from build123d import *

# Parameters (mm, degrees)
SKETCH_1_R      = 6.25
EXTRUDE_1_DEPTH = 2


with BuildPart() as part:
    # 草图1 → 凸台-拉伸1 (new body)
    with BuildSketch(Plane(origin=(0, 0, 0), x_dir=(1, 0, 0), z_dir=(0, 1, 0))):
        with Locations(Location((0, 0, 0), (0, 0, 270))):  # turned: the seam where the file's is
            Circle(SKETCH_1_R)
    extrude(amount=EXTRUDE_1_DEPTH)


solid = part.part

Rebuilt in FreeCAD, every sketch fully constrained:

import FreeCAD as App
import Part
import Sketcher

V = App.Vector

doc = App.newDocument("Part")
body = doc.addObject("PartDesign::Body", "Body")

# Sketch on XZ plane
sketch1 = body.newObject("Sketcher::SketchObject", "Sketch")
sketch1.AttachmentSupport = (doc.getObject("XZ_Plane"), [""])
sketch1.MapMode = "FlatFace"
sketch1.addGeometry(Part.Circle(V(0, 0, 0), V(0, 0, 1), 6), False)
sketch1.addConstraint([
    Sketcher.Constraint("Coincident", 0, 3, -1, 1),
    Sketcher.Constraint("Diameter", 0, 12.5),
])
pad1 = body.newObject("PartDesign::Pad", "Pad")
pad1.Profile = sketch1
pad1.Length = 2
pad1.Reversed = True

doc.recompute()
